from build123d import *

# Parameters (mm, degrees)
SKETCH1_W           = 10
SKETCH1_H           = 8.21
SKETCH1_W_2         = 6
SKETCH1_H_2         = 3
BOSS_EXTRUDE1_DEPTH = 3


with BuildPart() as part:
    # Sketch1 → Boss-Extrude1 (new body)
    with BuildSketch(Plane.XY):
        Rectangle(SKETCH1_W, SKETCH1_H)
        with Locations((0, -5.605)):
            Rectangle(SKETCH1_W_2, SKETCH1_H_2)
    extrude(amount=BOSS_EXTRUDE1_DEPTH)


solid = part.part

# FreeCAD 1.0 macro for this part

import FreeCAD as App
import Part
import Sketcher

doc = App.newDocument("Part")
body = doc.addObject("PartDesign::Body", "Body")

# Sketch on XY plane
sketch1 = body.newObject("Sketcher::SketchObject", "Sketch")
sketch1.AttachmentSupport = (doc.getObject("XY_Plane"), [""])
sketch1.MapMode = "FlatFace"
sketch1.addGeometry([
    Part.LineSegment(App.Vector(-5, 4.1, 0), App.Vector(-5, -4.1, 0)),  # 0
    Part.LineSegment(App.Vector(-5, -4.1, 0), App.Vector(-3, -4.1, 0)),  # 1
    Part.LineSegment(App.Vector(-3, -4.1, 0), App.Vector(-3, -7.1, 0)),  # 2
    Part.LineSegment(App.Vector(-3, -7.1, 0), App.Vector(3, -7.1, 0)),  # 3
    Part.LineSegment(App.Vector(3, -7.1, 0), App.Vector(3, -4.1, 0)),  # 4
    Part.LineSegment(App.Vector(3, -4.1, 0), App.Vector(5, -4.1, 0)),  # 5
    Part.LineSegment(App.Vector(5, -4.1, 0), App.Vector(5, 4.1, 0)),  # 6
    Part.LineSegment(App.Vector(5, 4.1, 0), App.Vector(-5, 4.1, 0)),  # 7
], False)
sketch1.addConstraint([
    Sketcher.Constraint("Coincident", 0, 2, 1, 1),
    Sketcher.Constraint("Coincident", 1, 2, 2, 1),
    Sketcher.Constraint("Coincident", 2, 2, 3, 1),
    Sketcher.Constraint("Coincident", 3, 2, 4, 1),
    Sketcher.Constraint("Coincident", 4, 2, 5, 1),
    Sketcher.Constraint("Coincident", 5, 2, 6, 1),
    Sketcher.Constraint("Coincident", 6, 2, 7, 1),
    Sketcher.Constraint("Coincident", 7, 2, 0, 1),
    Sketcher.Constraint("Vertical", 0),
    Sketcher.Constraint("Horizontal", 1),
    Sketcher.Constraint("Vertical", 2),
    Sketcher.Constraint("Horizontal", 3),
    Sketcher.Constraint("Vertical", 4),
    Sketcher.Constraint("Horizontal", 5),
    Sketcher.Constraint("Vertical", 6),
    Sketcher.Constraint("Horizontal", 7),
    Sketcher.Constraint("Symmetric", 0, 2, 6, 2, -1, 1),
    Sketcher.Constraint("Symmetric", 1, 2, 4, 2, -2),
    Sketcher.Constraint("DistanceX", 1, 1, 1, 2, 2.0),
    Sketcher.Constraint("DistanceX", 3, 1, 3, 2, 6.0),
    Sketcher.Constraint("DistanceY", 2, 2, 2, 1, 3.0),
    Sketcher.Constraint("DistanceY", 0, 2, 0, 1, 8.21),
])
pad1 = body.newObject("PartDesign::Pad", "Pad")
pad1.Profile = sketch1
pad1.Length = 3

doc.recompute()
